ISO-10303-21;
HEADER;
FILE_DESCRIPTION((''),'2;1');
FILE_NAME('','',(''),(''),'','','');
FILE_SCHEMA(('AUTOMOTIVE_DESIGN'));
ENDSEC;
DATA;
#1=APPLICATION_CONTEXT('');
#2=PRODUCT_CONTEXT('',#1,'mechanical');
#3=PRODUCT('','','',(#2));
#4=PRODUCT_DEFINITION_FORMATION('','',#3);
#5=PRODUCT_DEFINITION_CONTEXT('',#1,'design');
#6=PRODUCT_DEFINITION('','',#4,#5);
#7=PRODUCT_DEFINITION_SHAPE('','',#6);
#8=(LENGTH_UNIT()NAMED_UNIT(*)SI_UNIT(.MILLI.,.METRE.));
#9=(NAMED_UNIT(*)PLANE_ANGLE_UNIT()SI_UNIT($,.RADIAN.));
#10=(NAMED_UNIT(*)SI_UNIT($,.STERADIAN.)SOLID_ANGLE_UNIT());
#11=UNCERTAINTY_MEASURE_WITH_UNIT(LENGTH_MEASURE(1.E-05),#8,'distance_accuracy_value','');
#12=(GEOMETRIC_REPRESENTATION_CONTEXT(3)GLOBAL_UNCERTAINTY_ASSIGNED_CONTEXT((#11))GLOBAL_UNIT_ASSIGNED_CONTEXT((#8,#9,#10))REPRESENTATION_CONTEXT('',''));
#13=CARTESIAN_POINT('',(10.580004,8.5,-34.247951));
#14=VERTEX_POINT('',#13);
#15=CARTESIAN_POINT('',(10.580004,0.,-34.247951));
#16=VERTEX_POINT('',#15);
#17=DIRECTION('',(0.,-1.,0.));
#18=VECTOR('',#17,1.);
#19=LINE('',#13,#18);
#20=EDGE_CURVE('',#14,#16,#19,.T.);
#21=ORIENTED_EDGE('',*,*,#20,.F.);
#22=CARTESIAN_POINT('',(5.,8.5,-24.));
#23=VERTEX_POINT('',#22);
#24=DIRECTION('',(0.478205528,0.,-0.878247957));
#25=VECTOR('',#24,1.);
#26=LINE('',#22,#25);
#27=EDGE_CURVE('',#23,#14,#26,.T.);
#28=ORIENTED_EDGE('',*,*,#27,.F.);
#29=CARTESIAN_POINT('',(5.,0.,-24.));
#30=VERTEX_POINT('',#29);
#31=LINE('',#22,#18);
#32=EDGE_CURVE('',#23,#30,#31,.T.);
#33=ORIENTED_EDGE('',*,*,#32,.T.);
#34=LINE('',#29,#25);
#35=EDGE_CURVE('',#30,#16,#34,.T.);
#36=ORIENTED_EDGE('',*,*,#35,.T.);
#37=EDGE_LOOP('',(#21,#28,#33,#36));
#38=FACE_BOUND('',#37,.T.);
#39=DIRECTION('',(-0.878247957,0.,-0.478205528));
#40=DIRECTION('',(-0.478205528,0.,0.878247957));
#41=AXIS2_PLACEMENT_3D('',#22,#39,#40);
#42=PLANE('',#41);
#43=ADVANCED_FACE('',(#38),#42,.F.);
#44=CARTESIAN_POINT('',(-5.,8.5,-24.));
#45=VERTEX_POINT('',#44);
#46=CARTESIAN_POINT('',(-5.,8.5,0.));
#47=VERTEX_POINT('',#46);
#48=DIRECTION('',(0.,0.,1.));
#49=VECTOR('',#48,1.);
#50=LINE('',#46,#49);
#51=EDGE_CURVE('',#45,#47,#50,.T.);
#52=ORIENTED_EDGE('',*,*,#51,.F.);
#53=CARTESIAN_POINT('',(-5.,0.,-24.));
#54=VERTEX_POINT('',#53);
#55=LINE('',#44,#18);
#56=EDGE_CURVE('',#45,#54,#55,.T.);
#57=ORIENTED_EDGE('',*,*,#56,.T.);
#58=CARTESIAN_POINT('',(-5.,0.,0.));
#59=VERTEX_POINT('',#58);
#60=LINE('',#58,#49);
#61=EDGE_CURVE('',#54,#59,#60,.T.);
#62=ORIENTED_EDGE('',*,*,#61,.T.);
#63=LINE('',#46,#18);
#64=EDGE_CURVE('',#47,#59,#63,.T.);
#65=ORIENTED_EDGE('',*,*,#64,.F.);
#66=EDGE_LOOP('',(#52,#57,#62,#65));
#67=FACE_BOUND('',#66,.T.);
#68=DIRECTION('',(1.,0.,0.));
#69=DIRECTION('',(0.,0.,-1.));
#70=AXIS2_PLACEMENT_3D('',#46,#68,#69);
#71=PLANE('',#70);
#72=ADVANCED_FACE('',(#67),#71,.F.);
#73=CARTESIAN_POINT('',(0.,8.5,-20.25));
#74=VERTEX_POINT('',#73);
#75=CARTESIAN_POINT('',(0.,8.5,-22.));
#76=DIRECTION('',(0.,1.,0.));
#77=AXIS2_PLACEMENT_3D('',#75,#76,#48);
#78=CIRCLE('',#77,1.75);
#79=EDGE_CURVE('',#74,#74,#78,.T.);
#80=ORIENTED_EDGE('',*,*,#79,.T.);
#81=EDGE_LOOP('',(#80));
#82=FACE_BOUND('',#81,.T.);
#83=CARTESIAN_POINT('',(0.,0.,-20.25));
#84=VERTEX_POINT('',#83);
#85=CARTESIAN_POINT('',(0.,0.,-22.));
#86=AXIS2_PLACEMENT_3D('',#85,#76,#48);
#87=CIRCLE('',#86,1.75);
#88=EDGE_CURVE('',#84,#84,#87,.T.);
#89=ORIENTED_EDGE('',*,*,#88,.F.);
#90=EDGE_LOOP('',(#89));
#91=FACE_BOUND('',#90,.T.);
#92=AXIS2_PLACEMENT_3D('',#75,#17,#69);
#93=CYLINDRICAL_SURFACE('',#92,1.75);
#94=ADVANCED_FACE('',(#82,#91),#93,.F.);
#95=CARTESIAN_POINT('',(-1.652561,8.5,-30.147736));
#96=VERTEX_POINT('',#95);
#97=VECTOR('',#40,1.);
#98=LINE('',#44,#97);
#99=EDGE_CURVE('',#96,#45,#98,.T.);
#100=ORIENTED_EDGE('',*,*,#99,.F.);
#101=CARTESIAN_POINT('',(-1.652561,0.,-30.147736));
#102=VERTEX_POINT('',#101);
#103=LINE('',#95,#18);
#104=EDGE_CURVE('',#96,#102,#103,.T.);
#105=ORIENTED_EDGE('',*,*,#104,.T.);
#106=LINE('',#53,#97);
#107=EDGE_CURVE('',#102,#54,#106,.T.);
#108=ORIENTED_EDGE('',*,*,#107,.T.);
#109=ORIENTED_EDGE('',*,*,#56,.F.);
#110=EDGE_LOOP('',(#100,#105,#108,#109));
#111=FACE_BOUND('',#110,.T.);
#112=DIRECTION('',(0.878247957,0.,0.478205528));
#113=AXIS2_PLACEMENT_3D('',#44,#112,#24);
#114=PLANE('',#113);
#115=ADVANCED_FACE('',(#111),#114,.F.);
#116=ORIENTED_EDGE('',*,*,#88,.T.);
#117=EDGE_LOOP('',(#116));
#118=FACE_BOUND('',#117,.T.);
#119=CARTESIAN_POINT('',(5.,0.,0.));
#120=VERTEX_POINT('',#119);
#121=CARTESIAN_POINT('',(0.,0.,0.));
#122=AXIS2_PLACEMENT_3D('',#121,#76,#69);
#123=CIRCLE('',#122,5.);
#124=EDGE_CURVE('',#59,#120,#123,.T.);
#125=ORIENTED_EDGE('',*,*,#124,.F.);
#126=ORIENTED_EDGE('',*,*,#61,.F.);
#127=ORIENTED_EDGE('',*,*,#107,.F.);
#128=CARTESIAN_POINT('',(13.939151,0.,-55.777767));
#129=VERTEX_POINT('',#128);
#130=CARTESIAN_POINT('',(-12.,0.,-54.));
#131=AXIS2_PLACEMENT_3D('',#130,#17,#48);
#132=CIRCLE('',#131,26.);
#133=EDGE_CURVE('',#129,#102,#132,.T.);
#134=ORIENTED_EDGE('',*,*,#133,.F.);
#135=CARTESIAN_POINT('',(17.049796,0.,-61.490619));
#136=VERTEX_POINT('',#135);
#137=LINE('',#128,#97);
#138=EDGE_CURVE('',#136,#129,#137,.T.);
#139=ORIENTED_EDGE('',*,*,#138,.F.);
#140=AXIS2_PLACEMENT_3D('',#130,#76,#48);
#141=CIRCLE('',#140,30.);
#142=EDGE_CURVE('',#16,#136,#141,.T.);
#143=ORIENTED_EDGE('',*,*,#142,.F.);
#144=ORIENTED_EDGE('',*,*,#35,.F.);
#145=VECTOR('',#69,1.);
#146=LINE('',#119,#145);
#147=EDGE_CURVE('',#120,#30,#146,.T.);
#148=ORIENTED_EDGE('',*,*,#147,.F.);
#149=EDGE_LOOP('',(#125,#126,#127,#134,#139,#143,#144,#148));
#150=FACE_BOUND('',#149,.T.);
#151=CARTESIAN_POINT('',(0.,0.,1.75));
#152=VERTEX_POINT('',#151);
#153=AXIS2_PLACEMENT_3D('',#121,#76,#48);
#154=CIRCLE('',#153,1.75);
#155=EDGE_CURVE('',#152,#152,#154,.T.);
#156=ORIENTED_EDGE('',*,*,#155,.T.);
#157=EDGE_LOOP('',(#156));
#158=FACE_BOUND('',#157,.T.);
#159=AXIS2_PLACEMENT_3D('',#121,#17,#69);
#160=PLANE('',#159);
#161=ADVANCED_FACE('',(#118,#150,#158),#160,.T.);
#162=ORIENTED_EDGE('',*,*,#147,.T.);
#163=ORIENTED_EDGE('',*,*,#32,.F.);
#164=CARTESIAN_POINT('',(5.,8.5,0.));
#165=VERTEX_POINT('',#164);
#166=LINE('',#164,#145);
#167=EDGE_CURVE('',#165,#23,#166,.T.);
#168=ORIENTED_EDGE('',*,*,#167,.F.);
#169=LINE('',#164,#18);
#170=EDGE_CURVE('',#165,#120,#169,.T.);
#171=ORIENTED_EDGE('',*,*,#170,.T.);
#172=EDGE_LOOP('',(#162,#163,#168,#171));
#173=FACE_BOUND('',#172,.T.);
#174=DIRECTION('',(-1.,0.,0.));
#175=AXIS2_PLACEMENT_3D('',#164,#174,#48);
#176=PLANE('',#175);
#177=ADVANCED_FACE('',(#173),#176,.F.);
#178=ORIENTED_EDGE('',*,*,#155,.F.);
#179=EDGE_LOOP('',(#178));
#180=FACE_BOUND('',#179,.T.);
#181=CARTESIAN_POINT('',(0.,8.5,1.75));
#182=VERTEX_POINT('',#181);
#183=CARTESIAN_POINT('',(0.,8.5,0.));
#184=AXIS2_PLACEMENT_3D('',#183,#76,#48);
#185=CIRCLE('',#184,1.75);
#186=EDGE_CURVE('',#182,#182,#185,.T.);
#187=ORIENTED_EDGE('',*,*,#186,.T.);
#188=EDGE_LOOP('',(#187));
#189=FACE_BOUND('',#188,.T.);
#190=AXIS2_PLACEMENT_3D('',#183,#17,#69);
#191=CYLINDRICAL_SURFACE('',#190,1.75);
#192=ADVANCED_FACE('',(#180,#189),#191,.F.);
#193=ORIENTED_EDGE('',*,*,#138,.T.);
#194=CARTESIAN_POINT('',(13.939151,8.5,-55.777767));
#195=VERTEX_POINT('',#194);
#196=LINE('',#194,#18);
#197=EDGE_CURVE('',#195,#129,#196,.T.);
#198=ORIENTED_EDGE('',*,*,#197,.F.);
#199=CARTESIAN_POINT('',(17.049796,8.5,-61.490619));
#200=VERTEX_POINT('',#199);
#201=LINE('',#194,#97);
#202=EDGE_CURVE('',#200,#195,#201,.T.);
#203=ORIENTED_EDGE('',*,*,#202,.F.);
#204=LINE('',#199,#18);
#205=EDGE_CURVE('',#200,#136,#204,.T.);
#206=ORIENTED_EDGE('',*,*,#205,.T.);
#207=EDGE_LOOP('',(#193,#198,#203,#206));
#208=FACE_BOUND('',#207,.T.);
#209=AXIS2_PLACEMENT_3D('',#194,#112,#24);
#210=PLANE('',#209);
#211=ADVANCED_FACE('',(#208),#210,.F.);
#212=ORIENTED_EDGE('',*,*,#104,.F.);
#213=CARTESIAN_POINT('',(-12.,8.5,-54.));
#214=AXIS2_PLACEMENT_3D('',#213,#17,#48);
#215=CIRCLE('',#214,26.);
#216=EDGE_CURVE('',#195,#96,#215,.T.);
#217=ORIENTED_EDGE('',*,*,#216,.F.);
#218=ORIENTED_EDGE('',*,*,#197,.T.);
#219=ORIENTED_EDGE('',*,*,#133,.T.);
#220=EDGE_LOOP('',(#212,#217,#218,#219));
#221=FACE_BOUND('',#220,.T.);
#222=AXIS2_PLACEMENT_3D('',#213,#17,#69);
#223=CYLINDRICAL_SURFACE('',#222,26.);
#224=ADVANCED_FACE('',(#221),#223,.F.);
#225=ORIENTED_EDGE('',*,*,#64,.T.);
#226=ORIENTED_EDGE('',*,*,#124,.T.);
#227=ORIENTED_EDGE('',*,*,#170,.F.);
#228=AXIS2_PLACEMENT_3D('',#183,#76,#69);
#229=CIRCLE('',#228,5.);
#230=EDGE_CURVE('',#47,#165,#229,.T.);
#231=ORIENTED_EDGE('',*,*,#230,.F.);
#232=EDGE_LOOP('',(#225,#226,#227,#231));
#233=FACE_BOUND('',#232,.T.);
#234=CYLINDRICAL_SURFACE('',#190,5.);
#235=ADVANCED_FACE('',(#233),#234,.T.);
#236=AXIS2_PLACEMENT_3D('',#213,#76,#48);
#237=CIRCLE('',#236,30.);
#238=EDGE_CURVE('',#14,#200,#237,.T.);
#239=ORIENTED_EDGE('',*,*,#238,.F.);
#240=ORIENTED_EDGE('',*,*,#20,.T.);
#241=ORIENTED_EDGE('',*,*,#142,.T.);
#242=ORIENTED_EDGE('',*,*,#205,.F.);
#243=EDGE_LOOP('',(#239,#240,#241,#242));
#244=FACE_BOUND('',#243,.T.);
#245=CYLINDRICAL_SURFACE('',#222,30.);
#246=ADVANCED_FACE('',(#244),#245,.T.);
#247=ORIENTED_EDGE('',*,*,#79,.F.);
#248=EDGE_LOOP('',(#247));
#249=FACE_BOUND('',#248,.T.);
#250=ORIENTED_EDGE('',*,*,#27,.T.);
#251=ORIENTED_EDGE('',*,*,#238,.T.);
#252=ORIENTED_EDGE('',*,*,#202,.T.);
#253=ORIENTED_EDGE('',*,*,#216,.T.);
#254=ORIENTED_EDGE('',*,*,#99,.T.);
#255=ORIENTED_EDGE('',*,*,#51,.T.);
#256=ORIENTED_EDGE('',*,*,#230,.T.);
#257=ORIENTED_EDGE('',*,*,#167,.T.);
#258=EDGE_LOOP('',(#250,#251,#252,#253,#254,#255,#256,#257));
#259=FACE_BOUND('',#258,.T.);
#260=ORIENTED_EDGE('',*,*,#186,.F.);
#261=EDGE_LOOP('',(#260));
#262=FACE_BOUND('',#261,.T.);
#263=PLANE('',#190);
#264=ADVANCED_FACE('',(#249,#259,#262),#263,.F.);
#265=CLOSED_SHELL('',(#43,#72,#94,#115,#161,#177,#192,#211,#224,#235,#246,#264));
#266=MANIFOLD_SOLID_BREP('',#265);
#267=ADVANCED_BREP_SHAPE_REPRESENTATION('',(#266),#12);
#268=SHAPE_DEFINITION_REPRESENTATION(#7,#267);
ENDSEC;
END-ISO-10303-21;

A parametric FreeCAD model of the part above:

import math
import FreeCAD as App
import Part
import Sketcher

V = App.Vector

doc = App.newDocument("Part")
body = doc.addObject("PartDesign::Body", "Body")

# Sketch on XZ plane
sketch1 = body.newObject("Sketcher::SketchObject", "Sketch")
sketch1.AttachmentSupport = (doc.getObject("XZ_Plane"), [""])
sketch1.MapMode = "FlatFace"
sketch1.addGeometry([
    Part.LineSegment(V(-5, -24, 0), V(-5, 0, 0)),  # 0
    Part.ArcOfCircle(Part.Circle(V(0, 0, 0), V(0, 0, 1), 5), math.radians(0), math.radians(180)),  # 1
    Part.LineSegment(V(5, 0, 0), V(5, -24, 0)),  # 2
    Part.LineSegment(V(5, -24, 0), V(10.6, -34.2, 0)),  # 3
    Part.ArcOfCircle(Part.Circle(V(-12, -54, 0), V(0, 0, 1), 30), math.radians(-14), math.radians(41)),  # 4
    Part.LineSegment(V(17, -61.5, 0), V(13.9, -55.8, 0)),  # 5
    Part.ArcOfCircle(Part.Circle(V(-12, -54, 0), V(0, 0, 1), 26), math.radians(-4), math.radians(67)),  # 6
    Part.LineSegment(V(-1.7, -30.1, 0), V(-5, -24, 0)),  # 7
    Part.Circle(V(0, 0, 0), V(0, 0, 1), 1.8),  # 8
    Part.Circle(V(0, -22, 0), V(0, 0, 1), 1.8),  # 9
], False)
sketch1.addConstraint([
    Sketcher.Constraint("Tangent", 0, 2, 1, 2),
    Sketcher.Constraint("Tangent", 1, 1, 2, 1),
    Sketcher.Constraint("Coincident", 2, 2, 3, 1),
    Sketcher.Constraint("Coincident", 3, 2, 4, 2),
    Sketcher.Constraint("Coincident", 4, 1, 5, 1),
    Sketcher.Constraint("Coincident", 5, 2, 6, 1),
    Sketcher.Constraint("Coincident", 6, 2, 7, 1),
    Sketcher.Constraint("Coincident", 7, 2, 0, 1),
    Sketcher.Constraint("Vertical", 0),
    Sketcher.Constraint("Vertical", 2),
    Sketcher.Constraint("Coincident", 1, 3, -1, 1),
    Sketcher.Constraint("Coincident", 8, 3, -1, 1),
    Sketcher.Constraint("Coincident", 6, 3, 4, 3),
    Sketcher.Constraint("Equal", 8, 9),
    Sketcher.Constraint("PointOnObject", 9, 3, -2),
    Sketcher.Constraint("Parallel", 3, 5),
    Sketcher.Constraint("Parallel", 5, 7),
    Sketcher.Constraint("Horizontal", 2, 2, 7, 2),
    Sketcher.Constraint("Radius", 1, 5.0),
    Sketcher.Constraint("Radius", 4, 30.0),
    Sketcher.Constraint("Radius", 6, 26.0),
    Sketcher.Constraint("Diameter", 8, 3.5),
    Sketcher.Constraint("DistanceY", 0, 1, 0, 2, 24.0),
    Sketcher.Constraint("Distance", 7, 7.0),
    Sketcher.Constraint("DistanceX", 4, 3, -1, 1, 12.0),
    Sketcher.Constraint("DistanceY", 4, 3, -1, 1, 54.0),
    Sketcher.Constraint("DistanceY", 9, 3, -1, 1, 22.0),
    Sketcher.Constraint("Distance", 5, 6.504828),
])
pad1 = body.newObject("PartDesign::Pad", "Pad")
pad1.Profile = sketch1
pad1.Length = 8.5
pad1.Reversed = True

doc.recompute()
